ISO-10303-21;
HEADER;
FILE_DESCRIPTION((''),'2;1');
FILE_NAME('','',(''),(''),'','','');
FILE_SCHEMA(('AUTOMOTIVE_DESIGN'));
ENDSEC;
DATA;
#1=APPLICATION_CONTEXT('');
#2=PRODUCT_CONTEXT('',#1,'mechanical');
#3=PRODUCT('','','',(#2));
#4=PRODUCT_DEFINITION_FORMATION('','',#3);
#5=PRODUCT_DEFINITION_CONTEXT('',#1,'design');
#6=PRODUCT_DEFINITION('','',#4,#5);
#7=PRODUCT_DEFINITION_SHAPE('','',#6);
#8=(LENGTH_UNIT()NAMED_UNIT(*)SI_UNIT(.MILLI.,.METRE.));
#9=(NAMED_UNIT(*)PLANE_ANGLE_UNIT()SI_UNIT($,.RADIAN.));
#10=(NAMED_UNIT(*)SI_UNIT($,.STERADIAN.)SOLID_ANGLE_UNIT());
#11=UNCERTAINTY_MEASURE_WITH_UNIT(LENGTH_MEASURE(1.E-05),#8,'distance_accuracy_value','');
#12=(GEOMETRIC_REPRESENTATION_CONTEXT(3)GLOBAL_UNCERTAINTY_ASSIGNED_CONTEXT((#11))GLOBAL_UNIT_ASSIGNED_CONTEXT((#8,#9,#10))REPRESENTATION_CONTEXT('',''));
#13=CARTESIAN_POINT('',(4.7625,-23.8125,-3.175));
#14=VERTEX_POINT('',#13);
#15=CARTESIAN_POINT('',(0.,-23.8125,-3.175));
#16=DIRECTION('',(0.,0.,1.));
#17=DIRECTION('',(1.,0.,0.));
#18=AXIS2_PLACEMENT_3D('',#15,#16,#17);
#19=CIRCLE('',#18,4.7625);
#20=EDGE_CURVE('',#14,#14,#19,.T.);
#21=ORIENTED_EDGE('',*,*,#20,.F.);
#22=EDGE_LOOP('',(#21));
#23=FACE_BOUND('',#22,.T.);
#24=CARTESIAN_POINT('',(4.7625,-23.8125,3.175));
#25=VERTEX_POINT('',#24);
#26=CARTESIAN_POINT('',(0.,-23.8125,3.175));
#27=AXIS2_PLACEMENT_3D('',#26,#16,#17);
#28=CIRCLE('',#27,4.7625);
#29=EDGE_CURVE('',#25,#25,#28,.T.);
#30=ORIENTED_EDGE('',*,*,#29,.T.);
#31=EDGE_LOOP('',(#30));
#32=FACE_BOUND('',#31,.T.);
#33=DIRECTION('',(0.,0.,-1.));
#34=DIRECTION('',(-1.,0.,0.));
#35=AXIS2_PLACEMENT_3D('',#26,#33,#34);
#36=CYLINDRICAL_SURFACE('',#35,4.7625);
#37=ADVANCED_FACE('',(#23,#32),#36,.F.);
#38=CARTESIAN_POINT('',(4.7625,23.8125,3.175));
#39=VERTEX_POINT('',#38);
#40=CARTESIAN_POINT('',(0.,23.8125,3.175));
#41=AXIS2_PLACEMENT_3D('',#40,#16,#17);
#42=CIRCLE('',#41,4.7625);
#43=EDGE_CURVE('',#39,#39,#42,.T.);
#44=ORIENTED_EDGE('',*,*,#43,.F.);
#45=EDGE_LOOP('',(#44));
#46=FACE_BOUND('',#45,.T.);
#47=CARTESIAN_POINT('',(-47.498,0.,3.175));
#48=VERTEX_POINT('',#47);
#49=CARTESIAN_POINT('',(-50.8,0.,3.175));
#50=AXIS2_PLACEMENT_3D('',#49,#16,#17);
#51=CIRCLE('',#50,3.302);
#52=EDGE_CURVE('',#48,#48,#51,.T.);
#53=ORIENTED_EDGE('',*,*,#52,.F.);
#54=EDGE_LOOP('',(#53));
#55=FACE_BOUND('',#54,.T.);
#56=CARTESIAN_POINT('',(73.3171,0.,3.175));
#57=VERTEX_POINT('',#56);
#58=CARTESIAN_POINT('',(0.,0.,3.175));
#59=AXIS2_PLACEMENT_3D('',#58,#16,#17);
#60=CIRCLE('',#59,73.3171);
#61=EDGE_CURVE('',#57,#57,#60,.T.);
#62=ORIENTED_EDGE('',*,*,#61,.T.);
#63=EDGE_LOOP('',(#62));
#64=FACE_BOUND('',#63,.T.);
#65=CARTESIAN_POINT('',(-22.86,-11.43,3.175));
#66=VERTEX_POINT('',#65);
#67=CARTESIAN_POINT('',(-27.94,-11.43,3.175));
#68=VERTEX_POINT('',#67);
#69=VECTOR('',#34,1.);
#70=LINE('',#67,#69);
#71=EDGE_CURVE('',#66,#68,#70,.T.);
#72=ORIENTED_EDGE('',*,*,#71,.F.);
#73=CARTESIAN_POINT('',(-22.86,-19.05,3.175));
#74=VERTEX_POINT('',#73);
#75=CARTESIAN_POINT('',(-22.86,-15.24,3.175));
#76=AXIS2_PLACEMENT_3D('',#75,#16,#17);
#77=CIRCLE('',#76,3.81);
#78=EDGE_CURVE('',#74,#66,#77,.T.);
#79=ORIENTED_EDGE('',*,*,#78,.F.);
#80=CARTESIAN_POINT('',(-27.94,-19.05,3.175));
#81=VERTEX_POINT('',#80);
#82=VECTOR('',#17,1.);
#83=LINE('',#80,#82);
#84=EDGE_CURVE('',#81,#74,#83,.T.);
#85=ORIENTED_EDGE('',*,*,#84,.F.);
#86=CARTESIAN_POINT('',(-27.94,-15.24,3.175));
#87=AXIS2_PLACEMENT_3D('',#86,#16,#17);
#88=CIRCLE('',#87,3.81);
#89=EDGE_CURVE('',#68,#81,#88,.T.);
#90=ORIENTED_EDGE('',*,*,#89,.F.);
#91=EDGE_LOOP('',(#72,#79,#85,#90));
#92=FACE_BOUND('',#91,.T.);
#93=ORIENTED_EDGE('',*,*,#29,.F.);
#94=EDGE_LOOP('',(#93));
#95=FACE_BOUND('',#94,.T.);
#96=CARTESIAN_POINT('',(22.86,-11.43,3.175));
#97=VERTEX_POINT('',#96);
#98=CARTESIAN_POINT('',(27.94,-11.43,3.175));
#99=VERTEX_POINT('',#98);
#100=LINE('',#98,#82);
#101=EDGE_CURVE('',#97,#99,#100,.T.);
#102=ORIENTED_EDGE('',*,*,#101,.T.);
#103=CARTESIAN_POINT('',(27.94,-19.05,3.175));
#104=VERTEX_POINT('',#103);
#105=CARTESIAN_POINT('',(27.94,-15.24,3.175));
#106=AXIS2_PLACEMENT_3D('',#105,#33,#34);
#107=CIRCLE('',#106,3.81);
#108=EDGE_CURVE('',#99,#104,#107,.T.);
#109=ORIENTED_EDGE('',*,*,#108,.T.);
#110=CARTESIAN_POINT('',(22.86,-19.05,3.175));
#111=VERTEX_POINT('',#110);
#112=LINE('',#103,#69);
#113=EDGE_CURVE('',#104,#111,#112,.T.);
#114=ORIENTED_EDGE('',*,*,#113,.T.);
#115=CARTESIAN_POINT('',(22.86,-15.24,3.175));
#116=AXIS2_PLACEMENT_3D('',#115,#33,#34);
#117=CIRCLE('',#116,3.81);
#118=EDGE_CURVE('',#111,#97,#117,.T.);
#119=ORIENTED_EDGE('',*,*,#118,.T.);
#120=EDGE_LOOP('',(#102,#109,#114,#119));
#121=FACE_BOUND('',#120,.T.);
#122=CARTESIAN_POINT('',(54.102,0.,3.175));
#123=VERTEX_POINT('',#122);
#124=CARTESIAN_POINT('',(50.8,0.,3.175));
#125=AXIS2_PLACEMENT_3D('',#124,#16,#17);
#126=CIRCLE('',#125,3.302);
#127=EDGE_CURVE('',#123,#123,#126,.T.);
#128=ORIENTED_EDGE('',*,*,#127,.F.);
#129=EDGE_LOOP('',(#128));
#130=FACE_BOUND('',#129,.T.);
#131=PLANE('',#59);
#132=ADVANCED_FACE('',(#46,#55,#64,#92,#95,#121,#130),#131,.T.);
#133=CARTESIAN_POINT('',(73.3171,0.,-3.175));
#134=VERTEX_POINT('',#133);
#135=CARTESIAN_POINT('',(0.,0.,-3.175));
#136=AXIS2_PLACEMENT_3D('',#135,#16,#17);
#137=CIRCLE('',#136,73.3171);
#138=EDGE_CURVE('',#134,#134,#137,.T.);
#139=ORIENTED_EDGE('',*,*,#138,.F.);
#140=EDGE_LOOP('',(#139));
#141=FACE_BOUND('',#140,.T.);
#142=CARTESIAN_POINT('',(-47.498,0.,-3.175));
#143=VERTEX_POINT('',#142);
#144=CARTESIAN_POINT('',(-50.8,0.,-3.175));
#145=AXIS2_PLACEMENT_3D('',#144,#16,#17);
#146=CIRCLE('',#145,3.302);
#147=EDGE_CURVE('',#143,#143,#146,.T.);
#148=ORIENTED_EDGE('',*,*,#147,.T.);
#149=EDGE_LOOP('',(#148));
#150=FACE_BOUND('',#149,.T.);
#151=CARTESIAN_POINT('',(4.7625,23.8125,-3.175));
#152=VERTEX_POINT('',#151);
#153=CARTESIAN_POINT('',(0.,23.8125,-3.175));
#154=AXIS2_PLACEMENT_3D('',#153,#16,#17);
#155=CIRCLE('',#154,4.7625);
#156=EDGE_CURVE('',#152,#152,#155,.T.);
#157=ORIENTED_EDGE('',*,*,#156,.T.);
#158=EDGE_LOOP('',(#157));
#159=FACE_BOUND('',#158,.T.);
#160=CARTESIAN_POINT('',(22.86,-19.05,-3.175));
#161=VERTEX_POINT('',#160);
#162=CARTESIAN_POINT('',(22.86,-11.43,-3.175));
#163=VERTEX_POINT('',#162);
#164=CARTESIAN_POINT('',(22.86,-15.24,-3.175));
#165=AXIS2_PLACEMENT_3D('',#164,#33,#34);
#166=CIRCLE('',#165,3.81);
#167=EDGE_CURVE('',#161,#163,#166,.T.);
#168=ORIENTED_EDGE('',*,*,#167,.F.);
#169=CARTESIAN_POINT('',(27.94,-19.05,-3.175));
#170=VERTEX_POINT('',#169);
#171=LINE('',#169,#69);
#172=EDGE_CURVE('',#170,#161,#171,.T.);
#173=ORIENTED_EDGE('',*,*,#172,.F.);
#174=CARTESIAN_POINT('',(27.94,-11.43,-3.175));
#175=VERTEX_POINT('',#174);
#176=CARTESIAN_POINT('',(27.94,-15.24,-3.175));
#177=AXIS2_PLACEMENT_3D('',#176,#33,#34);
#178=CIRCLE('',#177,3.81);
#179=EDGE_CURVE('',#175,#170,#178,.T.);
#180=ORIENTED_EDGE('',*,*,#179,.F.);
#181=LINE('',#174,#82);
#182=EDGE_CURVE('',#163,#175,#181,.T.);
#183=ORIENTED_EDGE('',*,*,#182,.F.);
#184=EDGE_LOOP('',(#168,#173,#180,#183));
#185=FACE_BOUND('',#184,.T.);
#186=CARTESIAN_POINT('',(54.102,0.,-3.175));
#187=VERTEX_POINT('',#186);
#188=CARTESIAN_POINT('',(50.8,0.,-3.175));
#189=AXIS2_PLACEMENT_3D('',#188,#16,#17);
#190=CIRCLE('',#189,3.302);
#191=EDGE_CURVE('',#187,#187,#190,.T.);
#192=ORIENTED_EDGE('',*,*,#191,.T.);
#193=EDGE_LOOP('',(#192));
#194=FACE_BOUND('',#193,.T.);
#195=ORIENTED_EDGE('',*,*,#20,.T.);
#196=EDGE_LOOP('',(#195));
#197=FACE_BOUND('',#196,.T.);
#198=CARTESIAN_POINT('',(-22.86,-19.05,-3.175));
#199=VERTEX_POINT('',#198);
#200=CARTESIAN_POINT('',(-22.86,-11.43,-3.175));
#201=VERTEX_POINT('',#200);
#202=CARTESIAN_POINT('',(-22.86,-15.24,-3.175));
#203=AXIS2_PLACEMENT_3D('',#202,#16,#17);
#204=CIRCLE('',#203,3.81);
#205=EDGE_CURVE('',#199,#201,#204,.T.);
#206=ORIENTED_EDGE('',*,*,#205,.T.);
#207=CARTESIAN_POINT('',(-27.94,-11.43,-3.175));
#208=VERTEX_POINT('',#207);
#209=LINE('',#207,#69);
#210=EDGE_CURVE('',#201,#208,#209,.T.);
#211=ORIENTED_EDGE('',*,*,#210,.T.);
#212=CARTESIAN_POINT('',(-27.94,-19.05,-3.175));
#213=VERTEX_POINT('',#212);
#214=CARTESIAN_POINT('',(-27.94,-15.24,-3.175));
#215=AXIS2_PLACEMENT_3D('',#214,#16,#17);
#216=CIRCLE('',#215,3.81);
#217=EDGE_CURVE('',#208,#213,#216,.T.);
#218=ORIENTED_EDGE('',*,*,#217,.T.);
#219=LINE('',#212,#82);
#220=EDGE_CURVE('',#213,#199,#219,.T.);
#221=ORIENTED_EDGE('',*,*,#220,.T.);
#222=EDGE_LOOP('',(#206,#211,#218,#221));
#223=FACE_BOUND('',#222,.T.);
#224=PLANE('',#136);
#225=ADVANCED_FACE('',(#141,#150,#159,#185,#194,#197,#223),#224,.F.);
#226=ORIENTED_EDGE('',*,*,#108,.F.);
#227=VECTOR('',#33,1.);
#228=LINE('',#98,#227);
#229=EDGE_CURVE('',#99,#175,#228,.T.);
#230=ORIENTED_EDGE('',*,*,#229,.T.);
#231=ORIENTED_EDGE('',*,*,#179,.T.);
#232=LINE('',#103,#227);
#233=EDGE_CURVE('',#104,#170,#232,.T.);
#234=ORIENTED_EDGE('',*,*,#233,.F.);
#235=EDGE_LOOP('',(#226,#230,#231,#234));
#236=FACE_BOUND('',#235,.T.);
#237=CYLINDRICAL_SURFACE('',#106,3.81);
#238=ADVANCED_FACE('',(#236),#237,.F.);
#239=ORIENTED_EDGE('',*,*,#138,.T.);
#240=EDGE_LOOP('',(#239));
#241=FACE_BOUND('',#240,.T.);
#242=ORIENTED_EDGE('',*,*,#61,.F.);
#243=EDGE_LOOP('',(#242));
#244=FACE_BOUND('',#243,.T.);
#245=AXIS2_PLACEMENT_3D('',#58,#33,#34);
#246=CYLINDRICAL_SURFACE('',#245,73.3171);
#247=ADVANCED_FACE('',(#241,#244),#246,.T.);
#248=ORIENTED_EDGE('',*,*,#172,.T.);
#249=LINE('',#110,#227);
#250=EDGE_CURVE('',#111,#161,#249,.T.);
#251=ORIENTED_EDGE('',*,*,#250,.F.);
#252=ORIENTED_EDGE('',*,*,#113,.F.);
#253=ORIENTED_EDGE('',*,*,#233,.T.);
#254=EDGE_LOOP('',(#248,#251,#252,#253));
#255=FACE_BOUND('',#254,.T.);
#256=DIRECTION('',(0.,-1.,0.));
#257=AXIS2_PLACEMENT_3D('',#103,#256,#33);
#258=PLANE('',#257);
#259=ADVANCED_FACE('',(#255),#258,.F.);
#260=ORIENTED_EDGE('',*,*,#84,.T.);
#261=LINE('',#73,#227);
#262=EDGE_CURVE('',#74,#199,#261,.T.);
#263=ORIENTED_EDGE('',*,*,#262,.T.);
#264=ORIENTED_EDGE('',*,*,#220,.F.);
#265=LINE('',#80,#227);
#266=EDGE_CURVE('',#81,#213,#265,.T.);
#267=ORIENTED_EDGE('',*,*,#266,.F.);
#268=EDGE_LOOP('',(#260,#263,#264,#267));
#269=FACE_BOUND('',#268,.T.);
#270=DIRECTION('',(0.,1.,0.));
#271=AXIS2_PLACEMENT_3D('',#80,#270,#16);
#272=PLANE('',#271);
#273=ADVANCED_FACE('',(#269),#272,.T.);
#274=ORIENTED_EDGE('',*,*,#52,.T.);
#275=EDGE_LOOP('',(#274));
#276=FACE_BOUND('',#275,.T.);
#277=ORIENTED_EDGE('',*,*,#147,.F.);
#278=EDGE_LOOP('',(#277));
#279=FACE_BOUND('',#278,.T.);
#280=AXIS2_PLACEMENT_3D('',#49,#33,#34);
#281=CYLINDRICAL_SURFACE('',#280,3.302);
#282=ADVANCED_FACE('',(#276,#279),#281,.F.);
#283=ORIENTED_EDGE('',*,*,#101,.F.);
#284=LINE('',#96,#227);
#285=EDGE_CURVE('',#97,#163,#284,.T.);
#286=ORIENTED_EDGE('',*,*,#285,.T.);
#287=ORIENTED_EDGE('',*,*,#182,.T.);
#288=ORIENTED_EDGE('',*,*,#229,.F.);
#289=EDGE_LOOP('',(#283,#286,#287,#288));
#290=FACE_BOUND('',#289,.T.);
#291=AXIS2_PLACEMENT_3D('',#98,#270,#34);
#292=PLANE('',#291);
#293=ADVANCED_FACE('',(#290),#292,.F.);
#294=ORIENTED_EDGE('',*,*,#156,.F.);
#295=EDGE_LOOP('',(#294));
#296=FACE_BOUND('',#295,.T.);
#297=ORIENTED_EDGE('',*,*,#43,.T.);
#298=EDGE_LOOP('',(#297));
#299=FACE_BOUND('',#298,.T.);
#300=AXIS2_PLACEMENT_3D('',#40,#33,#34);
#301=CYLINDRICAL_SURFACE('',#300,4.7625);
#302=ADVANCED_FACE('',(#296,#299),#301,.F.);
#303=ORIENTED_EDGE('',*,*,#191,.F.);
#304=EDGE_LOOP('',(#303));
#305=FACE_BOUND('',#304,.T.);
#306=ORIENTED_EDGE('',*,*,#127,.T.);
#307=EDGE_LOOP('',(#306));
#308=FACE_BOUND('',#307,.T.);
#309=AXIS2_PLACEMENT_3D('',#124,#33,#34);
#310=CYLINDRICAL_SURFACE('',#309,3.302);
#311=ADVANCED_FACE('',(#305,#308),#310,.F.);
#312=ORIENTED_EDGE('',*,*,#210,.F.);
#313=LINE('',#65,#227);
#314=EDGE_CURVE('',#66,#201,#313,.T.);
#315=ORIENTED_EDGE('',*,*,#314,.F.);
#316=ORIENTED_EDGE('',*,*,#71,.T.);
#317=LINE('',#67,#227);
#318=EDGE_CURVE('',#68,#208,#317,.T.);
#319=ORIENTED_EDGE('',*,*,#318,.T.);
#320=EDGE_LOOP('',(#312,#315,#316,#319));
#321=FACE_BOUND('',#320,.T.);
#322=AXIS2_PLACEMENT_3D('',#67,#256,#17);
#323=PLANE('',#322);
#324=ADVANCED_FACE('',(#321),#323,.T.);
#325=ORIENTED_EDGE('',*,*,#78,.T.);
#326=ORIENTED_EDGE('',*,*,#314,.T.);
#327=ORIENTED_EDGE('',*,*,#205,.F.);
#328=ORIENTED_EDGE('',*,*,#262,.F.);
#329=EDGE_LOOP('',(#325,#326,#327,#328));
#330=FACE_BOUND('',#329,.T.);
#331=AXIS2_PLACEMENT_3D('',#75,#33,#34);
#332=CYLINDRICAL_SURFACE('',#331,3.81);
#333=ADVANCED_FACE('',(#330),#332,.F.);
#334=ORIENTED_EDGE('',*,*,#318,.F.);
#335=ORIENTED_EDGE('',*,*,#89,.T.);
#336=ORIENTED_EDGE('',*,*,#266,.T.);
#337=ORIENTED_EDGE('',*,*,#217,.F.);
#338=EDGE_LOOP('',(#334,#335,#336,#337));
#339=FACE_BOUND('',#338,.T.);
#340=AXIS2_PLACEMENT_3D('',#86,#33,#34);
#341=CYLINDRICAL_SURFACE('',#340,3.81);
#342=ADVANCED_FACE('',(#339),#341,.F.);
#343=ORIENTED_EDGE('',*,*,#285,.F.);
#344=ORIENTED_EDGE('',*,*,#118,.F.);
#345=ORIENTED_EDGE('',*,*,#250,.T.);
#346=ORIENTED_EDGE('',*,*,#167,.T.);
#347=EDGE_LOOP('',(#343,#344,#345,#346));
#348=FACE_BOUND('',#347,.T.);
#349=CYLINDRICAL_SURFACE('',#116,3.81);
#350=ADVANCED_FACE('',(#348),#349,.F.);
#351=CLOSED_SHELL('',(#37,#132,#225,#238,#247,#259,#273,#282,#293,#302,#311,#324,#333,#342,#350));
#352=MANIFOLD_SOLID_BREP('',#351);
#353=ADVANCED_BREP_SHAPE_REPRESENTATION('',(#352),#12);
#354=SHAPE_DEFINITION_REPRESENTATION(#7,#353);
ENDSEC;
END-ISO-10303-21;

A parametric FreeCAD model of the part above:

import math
import FreeCAD as App
import Part
import Sketcher
Q = App.Units.Quantity

doc = App.newDocument("Part")
params = doc.addObject("Spreadsheet::Sheet", "Params")
for row, (alias, value) in enumerate([
    ("sketch1_diameter", "0.26 in"),
    ("sketch1_diameter2", "5.773 in"),
    ("sketch1_diameter3", "0.375 in"),
    ("pad1_length", "0.25 in"),
    ("sketch2_radius", "0.15 in"),
    ("sketch2_width", "0.2 in"),
    ("pocket1_length", "0.25 in"),
], start=1):
    params.set(f"A{row}", alias)
    params.set(f"B{row}", "=" + value)
    params.setAlias(f"B{row}", alias)

body = doc.addObject("PartDesign::Body", "Body")

sketch1 = doc.addObject("Sketcher::SketchObject", "Sketch")
body.addObject(sketch1)
sketch1.AttachmentSupport = (doc.XY_Plane, [""])
sketch1.MapMode = "FlatFace"
sketch1.addGeometry(Part.Circle(App.Vector(0, 0, 0), App.Vector(0, 0, 1), 73.3171), False)
sketch1.addGeometry(Part.Circle(App.Vector(0, -23.8125, 0), App.Vector(0, 0, 1), 4.7625), False)
sketch1.addGeometry(Part.Circle(App.Vector(-50.8, 0, 0), App.Vector(0, 0, 1), 3.302), False)
sketch1.addGeometry(Part.Circle(App.Vector(50.8, 0, 0), App.Vector(0, 0, 1), 3.302), False)
sketch1.addGeometry(Part.Circle(App.Vector(0, 23.8125, 0), App.Vector(0, 0, 1), 4.7625), False)
sketch1.addConstraint(Sketcher.Constraint("Coincident", 0, 3, -1, 1))
sketch1.addConstraint(Sketcher.Constraint("Equal", 2, 3))
sketch1.addConstraint(Sketcher.Constraint("Equal", 1, 4))
sketch1.addConstraint(Sketcher.Constraint("Symmetric", 2, 3, 3, 3, -1, 1))
sketch1.addConstraint(Sketcher.Constraint("Symmetric", 1, 3, 4, 3, -1, 1))
sketch1.addConstraint(Sketcher.Constraint("PointOnObject", 1, 3, -2))
sketch1.addConstraint(Sketcher.Constraint("PointOnObject", 2, 3, -1))
sketch1.addConstraint(Sketcher.Constraint("Diameter", 2, Q("0.26 in")))
sketch1.addConstraint(Sketcher.Constraint("Diameter", 0, Q("5.773 in")))
sketch1.addConstraint(Sketcher.Constraint("Diameter", 1, Q("0.375 in")))
sketch1.addConstraint(Sketcher.Constraint("DistanceX", 2, 3, -1, 1, Q("2 in")))
sketch1.addConstraint(Sketcher.Constraint("DistanceY", 1, 3, -1, 1, Q("0.9375 in")))
sketch1.setExpression("Constraints[7]", "Params.sketch1_diameter")
sketch1.setExpression("Constraints[8]", "Params.sketch1_diameter2")
sketch1.setExpression("Constraints[9]", "Params.sketch1_diameter3")
pad1 = doc.addObject("PartDesign::Pad", "Pad")
body.addObject(pad1)
pad1.Profile = sketch1
pad1.setExpression("Length", "Params.pad1_length")
pad1.Midplane = True

sketch2 = doc.addObject("Sketcher::SketchObject", "Sketch001")
body.addObject(sketch2)
sketch2.AttachmentSupport = (doc.XY_Plane, [""])
sketch2.MapMode = "FlatFace"
sketch2.AttachmentOffset = App.Placement(App.Vector(0, 0, -0.125 * 25.4), App.Rotation())
sketch2.addGeometry(Part.LineSegment(App.Vector(22.86, -11.43, 0), App.Vector(27.94, -11.43, 0)), False)
sketch2.addGeometry(Part.ArcOfCircle(Part.Circle(App.Vector(27.94, -15.24, 0), App.Vector(0, 0, 1), 3.81), math.radians(-90), math.radians(90)), False)
sketch2.addGeometry(Part.LineSegment(App.Vector(27.94, -19.05, 0), App.Vector(22.86, -19.05, 0)), False)
sketch2.addGeometry(Part.ArcOfCircle(Part.Circle(App.Vector(22.86, -15.24, 0), App.Vector(0, 0, 1), 3.81), math.radians(90), math.radians(270)), False)
sketch2.addConstraint(Sketcher.Constraint("Tangent", 0, 2, 1, 2))
sketch2.addConstraint(Sketcher.Constraint("Tangent", 1, 1, 2, 1))
sketch2.addConstraint(Sketcher.Constraint("Tangent", 2, 2, 3, 2))
sketch2.addConstraint(Sketcher.Constraint("Tangent", 3, 1, 0, 1))
sketch2.addConstraint(Sketcher.Constraint("Horizontal", 0))
sketch2.addConstraint(Sketcher.Constraint("Horizontal", 2))
sketch2.addConstraint(Sketcher.Constraint("Radius", 1, Q("0.15 in")))
sketch2.addConstraint(Sketcher.Constraint("DistanceX", 0, 1, 0, 2, Q("0.2 in")))
sketch2.addConstraint(Sketcher.Constraint("DistanceX", -1, 1, 1, 3, Q("1.1 in")))
sketch2.addConstraint(Sketcher.Constraint("DistanceY", 1, 3, -1, 1, Q("0.6 in")))
sketch2.setExpression("Constraints[6]", "Params.sketch2_radius")
sketch2.setExpression("Constraints[7]", "Params.sketch2_width")
pocket1 = doc.addObject("PartDesign::Pocket", "Pocket")
body.addObject(pocket1)
pocket1.Profile = sketch2
pocket1.setExpression("Length", "Params.pocket1_length")
pocket1.Reversed = True
doc.recompute()

mirrored = doc.addObject("PartDesign::Mirrored", "Mirrored")
body.addObject(mirrored)
mirrored.Originals = [pocket1]
mirrored.MirrorPlane = (doc.YZ_Plane, [""])
body.Tip = mirrored

doc.recompute()
